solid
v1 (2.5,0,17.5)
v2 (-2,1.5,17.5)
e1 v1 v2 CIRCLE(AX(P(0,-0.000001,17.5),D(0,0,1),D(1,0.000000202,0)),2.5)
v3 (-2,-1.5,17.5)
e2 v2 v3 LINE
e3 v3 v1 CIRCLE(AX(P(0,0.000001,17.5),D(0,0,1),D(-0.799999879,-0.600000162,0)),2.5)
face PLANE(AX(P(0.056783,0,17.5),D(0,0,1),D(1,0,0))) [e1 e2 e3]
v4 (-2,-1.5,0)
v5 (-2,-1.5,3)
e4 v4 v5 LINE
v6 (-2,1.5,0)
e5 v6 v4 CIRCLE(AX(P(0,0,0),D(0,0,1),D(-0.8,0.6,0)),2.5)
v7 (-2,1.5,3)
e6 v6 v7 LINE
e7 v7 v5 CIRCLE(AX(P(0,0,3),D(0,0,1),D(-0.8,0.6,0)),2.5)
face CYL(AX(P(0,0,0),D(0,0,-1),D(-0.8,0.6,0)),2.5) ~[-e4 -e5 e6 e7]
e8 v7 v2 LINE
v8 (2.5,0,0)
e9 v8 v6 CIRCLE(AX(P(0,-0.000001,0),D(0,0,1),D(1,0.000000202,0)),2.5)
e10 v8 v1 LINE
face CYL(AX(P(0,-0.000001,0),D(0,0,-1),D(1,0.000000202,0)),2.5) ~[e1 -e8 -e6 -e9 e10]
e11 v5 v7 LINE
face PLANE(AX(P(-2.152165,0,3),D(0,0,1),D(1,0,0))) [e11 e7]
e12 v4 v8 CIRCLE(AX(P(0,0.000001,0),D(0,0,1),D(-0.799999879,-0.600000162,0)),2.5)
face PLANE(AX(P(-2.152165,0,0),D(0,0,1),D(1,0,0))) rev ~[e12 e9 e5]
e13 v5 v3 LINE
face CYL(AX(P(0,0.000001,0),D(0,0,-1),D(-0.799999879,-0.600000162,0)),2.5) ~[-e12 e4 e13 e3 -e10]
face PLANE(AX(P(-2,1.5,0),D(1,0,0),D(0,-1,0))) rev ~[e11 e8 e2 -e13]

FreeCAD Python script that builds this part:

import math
import FreeCAD as App
import Part
import Sketcher
from FreeCAD import Vector

doc = App.newDocument("Part")
params = doc.addObject("Spreadsheet::Sheet", "Params")
for row, (alias, value) in enumerate([
    ("sketch1_radius", "2.5 mm"),
    ("sketch1_height", "3 mm"),
    ("pad1_length", "17.5 mm"),
    ("sketch2_radius", "2.5 mm"),
    ("sketch2_height", "3 mm"),
    ("pad2_length", "3 mm"),
], start=1):
    params.set(f"A{row}", alias)
    params.set(f"B{row}", "=" + value)
    params.setAlias(f"B{row}", alias)

body = doc.addObject("PartDesign::Body", "Body")

# Sketch on XY plane
sketch1 = body.newObject("Sketcher::SketchObject", "Sketch")
sketch1.AttachmentSupport = (doc.getObject("XY_Plane"), [""])
sketch1.MapMode = "FlatFace"
sketch1.addGeometry([
    Part.ArcOfCircle(Part.Circle(Vector(0, 0, 0), Vector(0, 0, 1), 2.5), math.radians(-143), math.radians(0)),
    Part.ArcOfCircle(Part.Circle(Vector(0, 0, 0), Vector(0, 0, 1), 2.5), math.radians(0), math.radians(143)),
    Part.LineSegment(Vector(-2, 1.5, 0), Vector(-2, -1.5, 0)),
], False)
sketch1.addConstraint([
    Sketcher.Constraint("Tangent", 0, 2, 1, 1),
    Sketcher.Constraint("Coincident", 1, 2, 2, 1),
    Sketcher.Constraint("Coincident", 2, 2, 0, 1),
    Sketcher.Constraint("Vertical", 2),
    Sketcher.Constraint("Coincident", 0, 3, -1, 1),
    Sketcher.Constraint("Equal", 0, 1),
    Sketcher.Constraint("PointOnObject", 0, 2, -1),
    Sketcher.Constraint("Radius", 0, 2.5),
    Sketcher.Constraint("DistanceY", 2, 2, 2, 1, 3.0),
])
sketch1.setExpression("Constraints[7]", "Params.sketch1_radius")
sketch1.setExpression("Constraints[8]", "Params.sketch1_height")
pad1 = body.newObject("PartDesign::Pad", "Pad")
pad1.Profile = sketch1
pad1.setExpression("Length", "Params.pad1_length")

# Sketch on XY plane
sketch2 = body.newObject("Sketcher::SketchObject", "Sketch001")
sketch2.AttachmentSupport = (doc.getObject("XY_Plane"), [""])
sketch2.MapMode = "FlatFace"
sketch2.addGeometry([
    Part.LineSegment(Vector(-2, -1.5, 0), Vector(-2, 1.5, 0)),
    Part.ArcOfCircle(Part.Circle(Vector(0, 0, 0), Vector(0, 0, 1), 2.5), math.radians(143), math.radians(217)),
], False)
sketch2.addConstraint([
    Sketcher.Constraint("Coincident", 0, 1, 1, 2),
    Sketcher.Constraint("Coincident", 1, 1, 0, 2),
    Sketcher.Constraint("Vertical", 0),
    Sketcher.Constraint("Coincident", 1, 3, -1, 1),
    Sketcher.Constraint("Radius", 1, 2.5),
    Sketcher.Constraint("DistanceY", 0, 1, 0, 2, 3.0),
])
sketch2.setExpression("Constraints[4]", "Params.sketch2_radius")
sketch2.setExpression("Constraints[5]", "Params.sketch2_height")
pad2 = body.newObject("PartDesign::Pad", "Pad001")
pad2.Profile = sketch2
pad2.setExpression("Length", "Params.pad2_length")

doc.recompute()
